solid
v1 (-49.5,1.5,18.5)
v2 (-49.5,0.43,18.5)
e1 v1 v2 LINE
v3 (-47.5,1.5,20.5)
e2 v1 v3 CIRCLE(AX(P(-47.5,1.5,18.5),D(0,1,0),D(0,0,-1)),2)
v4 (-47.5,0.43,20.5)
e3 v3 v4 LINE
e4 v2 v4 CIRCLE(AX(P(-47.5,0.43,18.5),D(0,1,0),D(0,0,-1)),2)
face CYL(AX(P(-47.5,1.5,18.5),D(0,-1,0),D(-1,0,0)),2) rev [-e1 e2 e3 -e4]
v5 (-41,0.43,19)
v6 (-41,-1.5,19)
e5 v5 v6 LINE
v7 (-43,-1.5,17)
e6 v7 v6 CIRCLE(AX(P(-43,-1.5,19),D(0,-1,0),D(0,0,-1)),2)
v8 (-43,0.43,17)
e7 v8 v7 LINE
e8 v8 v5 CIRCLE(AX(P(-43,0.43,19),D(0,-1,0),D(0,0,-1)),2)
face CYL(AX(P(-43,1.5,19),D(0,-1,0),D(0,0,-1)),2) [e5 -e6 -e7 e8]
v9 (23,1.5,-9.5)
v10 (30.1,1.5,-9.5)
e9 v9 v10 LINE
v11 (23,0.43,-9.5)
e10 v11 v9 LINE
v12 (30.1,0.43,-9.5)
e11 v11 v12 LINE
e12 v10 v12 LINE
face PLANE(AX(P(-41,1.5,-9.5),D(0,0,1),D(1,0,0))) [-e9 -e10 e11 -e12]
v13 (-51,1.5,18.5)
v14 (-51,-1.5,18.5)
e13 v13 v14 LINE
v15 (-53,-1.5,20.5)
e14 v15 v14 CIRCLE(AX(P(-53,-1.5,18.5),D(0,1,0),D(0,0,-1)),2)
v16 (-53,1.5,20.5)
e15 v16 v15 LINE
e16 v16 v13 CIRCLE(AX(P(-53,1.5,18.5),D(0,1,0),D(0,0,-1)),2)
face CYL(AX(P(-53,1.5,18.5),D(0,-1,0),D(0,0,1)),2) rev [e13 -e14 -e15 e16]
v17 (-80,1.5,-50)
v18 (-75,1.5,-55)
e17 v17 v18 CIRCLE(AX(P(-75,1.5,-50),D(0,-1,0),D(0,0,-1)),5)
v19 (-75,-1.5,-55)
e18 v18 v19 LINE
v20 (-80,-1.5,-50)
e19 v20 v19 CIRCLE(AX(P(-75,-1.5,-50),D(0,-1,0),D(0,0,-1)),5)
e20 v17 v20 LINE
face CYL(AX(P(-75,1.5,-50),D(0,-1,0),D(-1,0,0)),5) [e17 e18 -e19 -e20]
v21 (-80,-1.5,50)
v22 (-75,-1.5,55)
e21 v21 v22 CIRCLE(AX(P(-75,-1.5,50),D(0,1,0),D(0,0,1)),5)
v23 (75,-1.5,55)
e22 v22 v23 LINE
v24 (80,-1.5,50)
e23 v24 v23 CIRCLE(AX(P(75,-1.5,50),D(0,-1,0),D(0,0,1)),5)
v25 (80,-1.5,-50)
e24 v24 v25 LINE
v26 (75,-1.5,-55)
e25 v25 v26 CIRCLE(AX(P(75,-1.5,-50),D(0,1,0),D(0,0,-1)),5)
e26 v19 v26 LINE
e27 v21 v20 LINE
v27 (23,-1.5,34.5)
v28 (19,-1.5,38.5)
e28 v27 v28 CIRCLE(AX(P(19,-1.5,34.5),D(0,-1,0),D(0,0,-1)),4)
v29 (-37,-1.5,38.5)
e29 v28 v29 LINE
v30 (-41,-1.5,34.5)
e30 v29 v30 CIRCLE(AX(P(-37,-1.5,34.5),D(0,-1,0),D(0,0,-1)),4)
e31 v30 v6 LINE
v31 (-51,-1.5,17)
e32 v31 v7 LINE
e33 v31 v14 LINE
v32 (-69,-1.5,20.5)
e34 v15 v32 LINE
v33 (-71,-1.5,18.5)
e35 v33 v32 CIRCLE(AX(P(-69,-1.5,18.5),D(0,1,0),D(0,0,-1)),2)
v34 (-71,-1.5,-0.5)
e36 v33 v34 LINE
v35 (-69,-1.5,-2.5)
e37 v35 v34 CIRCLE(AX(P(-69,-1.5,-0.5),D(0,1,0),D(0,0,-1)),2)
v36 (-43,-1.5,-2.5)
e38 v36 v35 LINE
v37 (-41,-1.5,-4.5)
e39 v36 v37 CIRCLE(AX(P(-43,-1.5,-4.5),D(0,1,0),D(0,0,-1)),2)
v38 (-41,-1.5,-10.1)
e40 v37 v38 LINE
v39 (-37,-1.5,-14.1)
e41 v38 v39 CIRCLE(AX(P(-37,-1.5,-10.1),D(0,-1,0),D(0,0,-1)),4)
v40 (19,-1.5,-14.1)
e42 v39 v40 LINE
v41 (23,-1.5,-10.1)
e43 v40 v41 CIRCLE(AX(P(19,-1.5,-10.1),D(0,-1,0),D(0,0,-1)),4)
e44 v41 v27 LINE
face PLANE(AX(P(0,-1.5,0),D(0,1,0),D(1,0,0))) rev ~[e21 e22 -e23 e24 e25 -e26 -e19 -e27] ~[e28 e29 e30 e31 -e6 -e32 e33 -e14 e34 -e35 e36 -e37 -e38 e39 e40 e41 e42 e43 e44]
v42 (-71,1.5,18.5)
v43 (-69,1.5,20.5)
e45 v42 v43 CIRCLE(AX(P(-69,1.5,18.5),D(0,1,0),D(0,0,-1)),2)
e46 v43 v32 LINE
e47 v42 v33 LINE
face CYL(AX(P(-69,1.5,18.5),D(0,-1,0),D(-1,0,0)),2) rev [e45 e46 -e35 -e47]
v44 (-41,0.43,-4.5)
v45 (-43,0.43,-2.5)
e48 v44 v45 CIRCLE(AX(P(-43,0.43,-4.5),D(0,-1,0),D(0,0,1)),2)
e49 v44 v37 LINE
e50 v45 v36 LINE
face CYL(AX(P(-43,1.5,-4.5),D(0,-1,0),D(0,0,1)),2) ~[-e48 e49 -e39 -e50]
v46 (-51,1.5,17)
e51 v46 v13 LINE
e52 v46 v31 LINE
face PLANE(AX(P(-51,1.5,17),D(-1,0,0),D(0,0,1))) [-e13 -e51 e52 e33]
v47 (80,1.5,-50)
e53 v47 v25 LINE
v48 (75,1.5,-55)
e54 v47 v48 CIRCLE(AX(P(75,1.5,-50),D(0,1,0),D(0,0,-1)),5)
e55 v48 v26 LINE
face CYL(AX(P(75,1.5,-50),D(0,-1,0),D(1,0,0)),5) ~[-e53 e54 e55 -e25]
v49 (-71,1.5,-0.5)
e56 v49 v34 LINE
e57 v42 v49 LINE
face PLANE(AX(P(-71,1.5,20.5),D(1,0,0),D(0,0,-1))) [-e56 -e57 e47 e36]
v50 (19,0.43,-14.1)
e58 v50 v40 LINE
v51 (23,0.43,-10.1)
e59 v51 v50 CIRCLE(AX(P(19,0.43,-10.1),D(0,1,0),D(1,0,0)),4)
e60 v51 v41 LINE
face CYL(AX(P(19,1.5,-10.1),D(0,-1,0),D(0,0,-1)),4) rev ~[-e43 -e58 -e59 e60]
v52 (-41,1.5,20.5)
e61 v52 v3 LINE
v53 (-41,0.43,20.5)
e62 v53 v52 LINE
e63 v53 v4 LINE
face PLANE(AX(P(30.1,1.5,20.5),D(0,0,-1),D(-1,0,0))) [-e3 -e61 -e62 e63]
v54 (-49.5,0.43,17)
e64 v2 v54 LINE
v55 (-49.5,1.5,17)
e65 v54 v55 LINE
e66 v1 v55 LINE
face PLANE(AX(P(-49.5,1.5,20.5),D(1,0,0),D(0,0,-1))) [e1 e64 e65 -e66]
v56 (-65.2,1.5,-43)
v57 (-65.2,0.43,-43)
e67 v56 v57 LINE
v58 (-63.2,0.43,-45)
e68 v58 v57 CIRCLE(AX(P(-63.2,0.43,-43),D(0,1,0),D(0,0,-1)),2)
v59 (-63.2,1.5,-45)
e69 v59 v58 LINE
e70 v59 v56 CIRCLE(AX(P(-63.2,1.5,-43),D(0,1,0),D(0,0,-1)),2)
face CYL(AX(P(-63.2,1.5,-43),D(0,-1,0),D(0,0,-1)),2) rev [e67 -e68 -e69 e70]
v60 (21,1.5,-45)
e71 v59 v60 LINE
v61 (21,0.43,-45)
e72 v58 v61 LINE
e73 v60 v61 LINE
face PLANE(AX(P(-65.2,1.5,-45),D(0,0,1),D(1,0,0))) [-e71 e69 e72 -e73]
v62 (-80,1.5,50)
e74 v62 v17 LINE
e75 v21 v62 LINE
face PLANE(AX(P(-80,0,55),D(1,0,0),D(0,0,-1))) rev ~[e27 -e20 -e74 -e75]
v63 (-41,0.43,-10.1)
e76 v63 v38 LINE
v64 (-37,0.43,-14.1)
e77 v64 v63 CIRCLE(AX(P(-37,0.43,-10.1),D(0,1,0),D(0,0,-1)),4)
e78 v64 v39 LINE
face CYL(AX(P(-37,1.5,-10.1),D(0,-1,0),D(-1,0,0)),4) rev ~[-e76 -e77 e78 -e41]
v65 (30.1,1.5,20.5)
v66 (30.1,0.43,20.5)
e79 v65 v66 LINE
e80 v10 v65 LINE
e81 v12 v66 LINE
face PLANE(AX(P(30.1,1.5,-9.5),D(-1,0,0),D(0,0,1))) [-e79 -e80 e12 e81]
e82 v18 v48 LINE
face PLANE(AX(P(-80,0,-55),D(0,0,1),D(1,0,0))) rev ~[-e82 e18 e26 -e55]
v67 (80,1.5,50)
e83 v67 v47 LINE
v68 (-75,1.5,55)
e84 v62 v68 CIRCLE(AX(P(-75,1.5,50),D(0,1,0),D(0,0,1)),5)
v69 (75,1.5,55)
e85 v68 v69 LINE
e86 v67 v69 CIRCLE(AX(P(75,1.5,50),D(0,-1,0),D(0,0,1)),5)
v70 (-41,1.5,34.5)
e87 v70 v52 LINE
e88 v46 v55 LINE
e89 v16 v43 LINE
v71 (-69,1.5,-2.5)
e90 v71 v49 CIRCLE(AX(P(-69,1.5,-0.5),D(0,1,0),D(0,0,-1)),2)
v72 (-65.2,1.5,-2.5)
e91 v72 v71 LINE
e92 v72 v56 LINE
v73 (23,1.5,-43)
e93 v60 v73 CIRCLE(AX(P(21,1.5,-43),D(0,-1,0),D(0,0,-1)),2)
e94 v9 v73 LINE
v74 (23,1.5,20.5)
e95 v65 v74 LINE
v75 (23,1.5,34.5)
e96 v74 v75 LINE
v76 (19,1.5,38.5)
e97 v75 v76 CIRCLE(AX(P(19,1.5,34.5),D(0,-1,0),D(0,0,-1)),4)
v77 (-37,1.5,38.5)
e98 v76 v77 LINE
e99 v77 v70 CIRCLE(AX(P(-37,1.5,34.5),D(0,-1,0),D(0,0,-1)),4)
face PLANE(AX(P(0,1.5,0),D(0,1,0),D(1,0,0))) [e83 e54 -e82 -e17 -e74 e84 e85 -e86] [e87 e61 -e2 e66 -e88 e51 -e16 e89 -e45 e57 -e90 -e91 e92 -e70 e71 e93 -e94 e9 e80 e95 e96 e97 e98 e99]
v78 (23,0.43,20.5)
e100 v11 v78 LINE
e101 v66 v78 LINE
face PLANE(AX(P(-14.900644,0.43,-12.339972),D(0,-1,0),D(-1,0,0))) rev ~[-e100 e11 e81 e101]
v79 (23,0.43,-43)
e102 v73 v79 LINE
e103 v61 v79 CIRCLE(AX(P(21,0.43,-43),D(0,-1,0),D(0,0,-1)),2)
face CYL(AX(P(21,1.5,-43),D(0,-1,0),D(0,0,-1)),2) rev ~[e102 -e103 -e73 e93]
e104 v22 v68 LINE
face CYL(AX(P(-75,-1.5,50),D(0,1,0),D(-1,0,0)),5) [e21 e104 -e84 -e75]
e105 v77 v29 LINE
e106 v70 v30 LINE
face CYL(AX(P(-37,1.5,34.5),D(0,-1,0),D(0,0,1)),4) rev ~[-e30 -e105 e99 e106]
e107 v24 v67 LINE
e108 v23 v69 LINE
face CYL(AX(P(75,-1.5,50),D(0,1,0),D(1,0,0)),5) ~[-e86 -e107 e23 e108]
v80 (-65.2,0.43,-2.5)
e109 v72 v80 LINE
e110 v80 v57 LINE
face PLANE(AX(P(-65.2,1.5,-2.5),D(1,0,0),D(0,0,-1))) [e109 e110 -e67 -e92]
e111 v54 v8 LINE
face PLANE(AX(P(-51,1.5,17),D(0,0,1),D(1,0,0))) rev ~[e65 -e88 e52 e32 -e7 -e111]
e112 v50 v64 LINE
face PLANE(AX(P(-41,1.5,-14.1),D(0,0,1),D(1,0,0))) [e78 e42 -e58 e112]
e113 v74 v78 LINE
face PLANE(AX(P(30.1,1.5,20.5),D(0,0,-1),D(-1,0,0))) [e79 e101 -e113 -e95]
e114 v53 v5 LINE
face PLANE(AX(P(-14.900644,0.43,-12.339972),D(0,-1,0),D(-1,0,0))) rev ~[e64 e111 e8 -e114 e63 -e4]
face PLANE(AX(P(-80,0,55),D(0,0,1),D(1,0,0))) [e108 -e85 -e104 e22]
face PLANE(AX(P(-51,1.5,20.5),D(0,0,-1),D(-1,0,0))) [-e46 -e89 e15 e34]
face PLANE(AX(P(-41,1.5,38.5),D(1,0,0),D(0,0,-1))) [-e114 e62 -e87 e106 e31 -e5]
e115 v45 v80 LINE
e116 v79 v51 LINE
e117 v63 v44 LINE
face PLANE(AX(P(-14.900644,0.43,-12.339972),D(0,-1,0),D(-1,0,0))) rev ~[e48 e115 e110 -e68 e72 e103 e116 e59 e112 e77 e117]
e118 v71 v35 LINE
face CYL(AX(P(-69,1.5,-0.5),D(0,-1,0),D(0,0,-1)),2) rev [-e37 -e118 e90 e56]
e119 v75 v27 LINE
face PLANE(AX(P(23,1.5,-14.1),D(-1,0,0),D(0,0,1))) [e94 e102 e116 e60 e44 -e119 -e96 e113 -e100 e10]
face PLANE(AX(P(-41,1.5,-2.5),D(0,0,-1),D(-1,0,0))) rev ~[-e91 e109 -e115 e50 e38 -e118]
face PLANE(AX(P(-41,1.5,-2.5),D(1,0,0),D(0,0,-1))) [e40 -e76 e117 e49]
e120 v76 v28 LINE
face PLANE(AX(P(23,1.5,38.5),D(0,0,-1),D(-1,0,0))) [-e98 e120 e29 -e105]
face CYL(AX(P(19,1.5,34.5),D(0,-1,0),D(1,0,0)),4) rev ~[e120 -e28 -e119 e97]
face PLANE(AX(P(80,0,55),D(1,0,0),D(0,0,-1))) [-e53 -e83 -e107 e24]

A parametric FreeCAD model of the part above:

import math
import FreeCAD as App
import Part
import Sketcher
from FreeCAD import Vector
Q = App.Units.Quantity


def edges_at(feature, points):
    """Names of the edges that pass closest to the given points."""
    edges = feature.Shape.Edges
    near = lambda p: min(range(len(edges)), key=lambda i: edges[i].distToShape(Part.Vertex(*p))[0])
    return sorted({f"Edge{near(p) + 1}" for p in points})

doc = App.newDocument("Part")
params = doc.addObject("Spreadsheet::Sheet", "Params")
for row, (alias, value) in enumerate([
    ("sketch1_width", "160 mm"),
    ("sketch1_height", "110 mm"),
    ("pad1_length", "3 mm"),
    ("fillet_radius", "5 mm"),
    ("sketch2_width", "30 mm"),
    ("sketch2_width2", "20 mm"),
    ("sketch2_width3", "64 mm"),
    ("sketch2_height", "23 mm"),
    ("sketch2_height2", "3.5 mm"),
    ("fillet2_radius", "2 mm"),
    ("fillet3_radius", "4 mm"),
    ("sketch3_radius", "4 mm"),
    ("sketch3_width", "56 mm"),
    ("sketch3_height", "23 mm"),
    ("sketch3_height2", "30 mm"),
    ("sketch3_width2", "15.7 mm"),
    ("pocket2_length", "1.07 mm"),
    ("fillet4_radius", "2 mm"),
], start=1):
    params.set(f"A{row}", alias)
    params.set(f"B{row}", "=" + value)
    params.setAlias(f"B{row}", alias)

body = doc.addObject("PartDesign::Body", "Body")

# Sketch on XZ plane
sketch1 = body.newObject("Sketcher::SketchObject", "Sketch")
sketch1.AttachmentSupport = (doc.getObject("XZ_Plane"), [""])
sketch1.MapMode = "FlatFace"
sketch1.addGeometry([
    Part.LineSegment(Vector(-80, -55, 0), Vector(-80, 55, 0)),
    Part.LineSegment(Vector(-80, 55, 0), Vector(80, 55, 0)),
    Part.LineSegment(Vector(80, 55, 0), Vector(80, -55, 0)),
    Part.LineSegment(Vector(80, -55, 0), Vector(-80, -55, 0)),
], False)
sketch1.addConstraint([
    Sketcher.Constraint("Coincident", 0, 2, 1, 1),
    Sketcher.Constraint("Coincident", 1, 2, 2, 1),
    Sketcher.Constraint("Coincident", 2, 2, 3, 1),
    Sketcher.Constraint("Coincident", 3, 2, 0, 1),
    Sketcher.Constraint("Vertical", 0),
    Sketcher.Constraint("Horizontal", 1),
    Sketcher.Constraint("Vertical", 2),
    Sketcher.Constraint("Horizontal", 3),
    Sketcher.Constraint("Symmetric", 0, 2, 2, 2, -1, 1),
    Sketcher.Constraint("DistanceX", 1, 1, 1, 2, Q("160 mm")),
    Sketcher.Constraint("DistanceY", 0, 1, 0, 2, Q("110 mm")),
])
sketch1.setExpression("Constraints[9]", "Params.sketch1_width")
sketch1.setExpression("Constraints[10]", "Params.sketch1_height")
pad1 = body.newObject("PartDesign::Pad", "Pad")
pad1.Profile = sketch1
pad1.setExpression("Length", "Params.pad1_length")
pad1.Midplane = True
doc.recompute()

fillet = body.newObject("PartDesign::Fillet", "Fillet")
fillet.Base = (pad1, edges_at(pad1, [
    (80, 0, 55),
    (-80, 0, 55),
    (-80, 0, -55),
    (80, 0, -55),
]))
fillet.setExpression("Radius", "Params.fillet_radius")

# Sketch on XZ plane
sketch2 = body.newObject("Sketcher::SketchObject", "Sketch001")
sketch2.AttachmentSupport = (doc.getObject("XZ_Plane"), [""])
sketch2.MapMode = "FlatFace"
sketch2.AttachmentOffset = App.Placement(Vector(0, 0, -1.5), App.Rotation())
sketch2.addGeometry([
    Part.LineSegment(Vector(-41, -2.5, 0), Vector(-71, -2.5, 0)),  # 0
    Part.LineSegment(Vector(-71, -2.5, 0), Vector(-71, 20.5, 0)),  # 1
    Part.LineSegment(Vector(-71, 20.5, 0), Vector(-51, 20.5, 0)),  # 2
    Part.LineSegment(Vector(-51, 20.5, 0), Vector(-51, 17, 0)),  # 3
    Part.LineSegment(Vector(-51, 17, 0), Vector(-41, 17, 0)),  # 4
    Part.LineSegment(Vector(-41, 17, 0), Vector(-41, 38.5, 0)),  # 5
    Part.LineSegment(Vector(-41, 38.5, 0), Vector(23, 38.5, 0)),  # 6
    Part.LineSegment(Vector(23, 38.5, 0), Vector(23, -14.1, 0)),  # 7
    Part.LineSegment(Vector(23, -14.1, 0), Vector(-41, -14.1, 0)),  # 8
    Part.LineSegment(Vector(-41, -14.1, 0), Vector(-41, -2.5, 0)),  # 9
], False)
sketch2.addConstraint([
    Sketcher.Constraint("Coincident", 0, 2, 1, 1),
    Sketcher.Constraint("Coincident", 1, 2, 2, 1),
    Sketcher.Constraint("Coincident", 2, 2, 3, 1),
    Sketcher.Constraint("Coincident", 3, 2, 4, 1),
    Sketcher.Constraint("Coincident", 4, 2, 5, 1),
    Sketcher.Constraint("Coincident", 5, 2, 6, 1),
    Sketcher.Constraint("Coincident", 6, 2, 7, 1),
    Sketcher.Constraint("Coincident", 7, 2, 8, 1),
    Sketcher.Constraint("Coincident", 8, 2, 9, 1),
    Sketcher.Constraint("Coincident", 9, 2, 0, 1),
    Sketcher.Constraint("Horizontal", 0),
    Sketcher.Constraint("Vertical", 1),
    Sketcher.Constraint("Horizontal", 2),
    Sketcher.Constraint("Vertical", 3),
    Sketcher.Constraint("Horizontal", 4),
    Sketcher.Constraint("Vertical", 5),
    Sketcher.Constraint("Horizontal", 6),
    Sketcher.Constraint("Vertical", 7),
    Sketcher.Constraint("Horizontal", 8),
    Sketcher.Constraint("Vertical", 9),
    Sketcher.Constraint("Vertical", 5, 2, 8, 2),
    Sketcher.Constraint("DistanceX", 0, 2, 0, 1, Q("30 mm")),
    Sketcher.Constraint("DistanceX", 2, 1, 2, 2, Q("20 mm")),
    Sketcher.Constraint("DistanceX", 6, 1, 6, 2, Q("64 mm")),
    Sketcher.Constraint("DistanceY", 1, 1, 1, 2, Q("23 mm")),
    Sketcher.Constraint("DistanceY", 3, 2, 3, 1, Q("3.5 mm")),
    Sketcher.Constraint("DistanceY", 5, 1, 5, 2, Q("21.5 mm")),
    Sketcher.Constraint("DistanceY", 7, 2, 7, 1, Q("52.6 mm")),
    Sketcher.Constraint("DistanceX", 0, 2, -1, 1, Q("71 mm")),
    Sketcher.Constraint("DistanceY", -1, 1, 3, 2, Q("17 mm")),
])
sketch2.setExpression("Constraints[21]", "Params.sketch2_width")
sketch2.setExpression("Constraints[22]", "Params.sketch2_width2")
sketch2.setExpression("Constraints[23]", "Params.sketch2_width3")
sketch2.setExpression("Constraints[24]", "Params.sketch2_height")
sketch2.setExpression("Constraints[25]", "Params.sketch2_height2")
pocket1 = body.newObject("PartDesign::Pocket", "Pocket")
pocket1.Profile = sketch2
pocket1.Type = "ThroughAll"
pocket1.Reversed = True
doc.recompute()

fillet2 = body.newObject("PartDesign::Fillet", "Fillet001")
fillet2.Base = (pocket1, edges_at(pocket1, [
    (-51, 0, 20.5),
    (-71, 0, 20.5),
    (-71, 0, -2.5),
    (-41, 0, -2.5),
    (-41, 0, 17),
]))
fillet2.setExpression("Radius", "Params.fillet2_radius")
doc.recompute()

fillet3 = body.newObject("PartDesign::Fillet", "Fillet002")
fillet3.Base = (fillet2, edges_at(fillet2, [
    (-41, 0, -14.1),
    (23, 0, -14.1),
    (23, 0, 38.5),
    (-41, 0, 38.5),
]))
fillet3.setExpression("Radius", "Params.fillet3_radius")

# Sketch on XZ plane
sketch3 = body.newObject("Sketcher::SketchObject", "Sketch002")
sketch3.AttachmentSupport = (doc.getObject("XZ_Plane"), [""])
sketch3.MapMode = "FlatFace"
sketch3.AttachmentOffset = App.Placement(Vector(0, 0, -1.5), App.Rotation())
sketch3.addGeometry([
    Part.LineSegment(Vector(-65.2, -45, 0), Vector(-65.2, -2.5, 0)),  # 0
    Part.LineSegment(Vector(-65.2, -2.5, 0), Vector(-49.5, -2.5, 0)),  # 1
    Part.LineSegment(Vector(-49.5, -2.5, 0), Vector(-49.5, 20.5, 0)),  # 2
    Part.LineSegment(Vector(-49.5, 20.5, 0), Vector(30.1, 20.5, 0)),  # 3
    Part.LineSegment(Vector(30.1, 20.5, 0), Vector(30.1, -9.5, 0)),  # 4
    Part.LineSegment(Vector(30.1, -9.5, 0), Vector(-41, -9.5, 0)),  # 5
    Part.LineSegment(Vector(-41, -9.5, 0), Vector(-41, -10.1, 0)),  # 6
    Part.ArcOfCircle(Part.Circle(Vector(-37, -10.1, 0), Vector(0, 0, 1), 4), math.radians(180), math.radians(270)),  # 7
    Part.LineSegment(Vector(-37, -14.1, 0), Vector(19, -14.1, 0)),  # 8
    Part.ArcOfCircle(Part.Circle(Vector(19, -10.1, 0), Vector(0, 0, 1), 4), math.radians(-90), math.radians(0)),  # 9
    Part.LineSegment(Vector(23, -10.1, 0), Vector(23, -45, 0)),  # 10
    Part.LineSegment(Vector(23, -45, 0), Vector(-65.2, -45, 0)),  # 11
], False)
sketch3.addConstraint([
    Sketcher.Constraint("Coincident", 0, 2, 1, 1),
    Sketcher.Constraint("Coincident", 1, 2, 2, 1),
    Sketcher.Constraint("Coincident", 2, 2, 3, 1),
    Sketcher.Constraint("Coincident", 3, 2, 4, 1),
    Sketcher.Constraint("Coincident", 4, 2, 5, 1),
    Sketcher.Constraint("Coincident", 5, 2, 6, 1),
    Sketcher.Constraint("Tangent", 6, 2, 7, 1),
    Sketcher.Constraint("Tangent", 7, 2, 8, 1),
    Sketcher.Constraint("Tangent", 8, 2, 9, 1),
    Sketcher.Constraint("Tangent", 9, 2, 10, 1),
    Sketcher.Constraint("Coincident", 10, 2, 11, 1),
    Sketcher.Constraint("Coincident", 11, 2, 0, 1),
    Sketcher.Constraint("Vertical", 0),
    Sketcher.Constraint("Horizontal", 1),
    Sketcher.Constraint("Vertical", 2),
    Sketcher.Constraint("Horizontal", 3),
    Sketcher.Constraint("Vertical", 4),
    Sketcher.Constraint("Horizontal", 5),
    Sketcher.Constraint("Vertical", 6),
    Sketcher.Constraint("Horizontal", 8),
    Sketcher.Constraint("Vertical", 10),
    Sketcher.Constraint("Horizontal", 11),
    Sketcher.Constraint("Equal", 7, 9),
    Sketcher.Constraint("Radius", 7, Q("4 mm")),
    Sketcher.Constraint("DistanceX", 8, 1, 8, 2, Q("56 mm")),
    Sketcher.Constraint("DistanceY", 2, 1, 2, 2, Q("23 mm")),
    Sketcher.Constraint("DistanceY", 4, 2, 4, 1, Q("30 mm")),
    Sketcher.Constraint("DistanceX", 1, 1, 1, 2, Q("15.7 mm")),
    Sketcher.Constraint("DistanceX", 3, 1, 3, 2, Q("79.6 mm")),
    Sketcher.Constraint("DistanceX", 5, 2, 5, 1, Q("71.1 mm")),
    Sketcher.Constraint("DistanceY", 0, 1, 0, 2, Q("42.5 mm")),
    Sketcher.Constraint("DistanceY", 6, 2, 6, 1, Q("0.6 mm")),
    Sketcher.Constraint("DistanceX", 7, 3, -1, 1, Q("37 mm")),
    Sketcher.Constraint("DistanceY", 10, 2, -1, 1, Q("45 mm")),
])
sketch3.setExpression("Constraints[23]", "Params.sketch3_radius")
sketch3.setExpression("Constraints[24]", "Params.sketch3_width")
sketch3.setExpression("Constraints[25]", "Params.sketch3_height")
sketch3.setExpression("Constraints[26]", "Params.sketch3_height2")
sketch3.setExpression("Constraints[27]", "Params.sketch3_width2")
pocket2 = body.newObject("PartDesign::Pocket", "Pocket001")
pocket2.Profile = sketch3
pocket2.setExpression("Length", "Params.pocket2_length")
pocket2.Reversed = True
doc.recompute()

fillet4 = body.newObject("PartDesign::Fillet", "Fillet003")
fillet4.Base = (pocket2, edges_at(pocket2, [(-49.5, 0.965, 20.5), (-65.2, 0.965, -45), (23, 0.965, -45)]))
fillet4.setExpression("Radius", "Params.fillet4_radius")

doc.recompute()
